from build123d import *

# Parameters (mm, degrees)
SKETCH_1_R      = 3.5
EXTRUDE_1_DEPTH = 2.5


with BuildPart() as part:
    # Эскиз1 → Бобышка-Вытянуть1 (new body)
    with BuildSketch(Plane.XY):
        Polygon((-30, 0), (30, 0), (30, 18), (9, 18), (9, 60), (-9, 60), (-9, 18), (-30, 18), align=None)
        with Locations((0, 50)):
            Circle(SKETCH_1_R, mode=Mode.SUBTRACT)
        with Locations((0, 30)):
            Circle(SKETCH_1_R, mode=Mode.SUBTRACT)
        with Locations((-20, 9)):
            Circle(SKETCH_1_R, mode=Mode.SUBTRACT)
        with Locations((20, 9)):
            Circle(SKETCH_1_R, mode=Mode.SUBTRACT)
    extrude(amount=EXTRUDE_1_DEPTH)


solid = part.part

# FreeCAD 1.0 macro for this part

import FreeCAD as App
import Part
import Sketcher
from FreeCAD import Vector
Q = App.Units.Quantity

doc = App.newDocument("Part")
body = doc.addObject("PartDesign::Body", "Body")

# Sketch on XY plane
sketch1 = doc.addObject("Sketcher::SketchObject", "Sketch")
body.addObject(sketch1)
sketch1.AttachmentSupport = (doc.XY_Plane, [""])
sketch1.MapMode = "FlatFace"
sketch1.addGeometry(Part.LineSegment(Vector(-30, 0, 0), Vector(30, 0, 0)), False)
sketch1.addGeometry(Part.LineSegment(Vector(30, 0, 0), Vector(30, 18, 0)), False)
sketch1.addGeometry(Part.LineSegment(Vector(30, 18, 0), Vector(9, 18, 0)), False)
sketch1.addGeometry(Part.LineSegment(Vector(9, 18, 0), Vector(9, 60, 0)), False)
sketch1.addGeometry(Part.LineSegment(Vector(9, 60, 0), Vector(-9, 60, 0)), False)
sketch1.addGeometry(Part.LineSegment(Vector(-9, 60, 0), Vector(-9, 18, 0)), False)
sketch1.addGeometry(Part.LineSegment(Vector(-9, 18, 0), Vector(-30, 18, 0)), False)
sketch1.addGeometry(Part.LineSegment(Vector(-30, 18, 0), Vector(-30, 0, 0)), False)
sketch1.addGeometry(Part.Circle(Vector(-20, 9, 0), Vector(0, 0, 1), 3.5), False)
sketch1.addGeometry(Part.Circle(Vector(20, 9, 0), Vector(0, 0, 1), 3.5), False)
sketch1.addGeometry(Part.Circle(Vector(0, 30, 0), Vector(0, 0, 1), 3.5), False)
sketch1.addGeometry(Part.Circle(Vector(0, 50, 0), Vector(0, 0, 1), 3.5), False)
sketch1.addConstraint(Sketcher.Constraint("Coincident", 0, 2, 1, 1))
sketch1.addConstraint(Sketcher.Constraint("Coincident", 1, 2, 2, 1))
sketch1.addConstraint(Sketcher.Constraint("Coincident", 2, 2, 3, 1))
sketch1.addConstraint(Sketcher.Constraint("Coincident", 3, 2, 4, 1))
sketch1.addConstraint(Sketcher.Constraint("Coincident", 4, 2, 5, 1))
sketch1.addConstraint(Sketcher.Constraint("Coincident", 5, 2, 6, 1))
sketch1.addConstraint(Sketcher.Constraint("Coincident", 6, 2, 7, 1))
sketch1.addConstraint(Sketcher.Constraint("Coincident", 7, 2, 0, 1))
sketch1.addConstraint(Sketcher.Constraint("Horizontal", 0))
sketch1.addConstraint(Sketcher.Constraint("Vertical", 1))
sketch1.addConstraint(Sketcher.Constraint("Horizontal", 2))
sketch1.addConstraint(Sketcher.Constraint("Vertical", 3))
sketch1.addConstraint(Sketcher.Constraint("Horizontal", 4))
sketch1.addConstraint(Sketcher.Constraint("Vertical", 5))
sketch1.addConstraint(Sketcher.Constraint("Horizontal", 6))
sketch1.addConstraint(Sketcher.Constraint("Vertical", 7))
sketch1.addConstraint(Sketcher.Constraint("Equal", 8, 9))
sketch1.addConstraint(Sketcher.Constraint("Equal", 9, 10))
sketch1.addConstraint(Sketcher.Constraint("Equal", 10, 11))
sketch1.addConstraint(Sketcher.Constraint("Symmetric", 0, 2, 7, 2, -1, 1))
sketch1.addConstraint(Sketcher.Constraint("Symmetric", 8, 3, 9, 3, -2))
sketch1.addConstraint(Sketcher.Constraint("Symmetric", 2, 2, 5, 2, -2))
sketch1.addConstraint(Sketcher.Constraint("PointOnObject", 10, 3, -2))
sketch1.addConstraint(Sketcher.Constraint("PointOnObject", 11, 3, -2))
sketch1.addConstraint(Sketcher.Constraint("Equal", 4, 1))
sketch1.addConstraint(Sketcher.Constraint("Diameter", 8, Q("7 mm")))
sketch1.addConstraint(Sketcher.Constraint("DistanceX", 0, 1, 0, 2, Q("60 mm")))
sketch1.addConstraint(Sketcher.Constraint("DistanceX", 2, 2, 2, 1, Q("21 mm")))
sketch1.addConstraint(Sketcher.Constraint("DistanceY", 3, 1, 3, 2, Q("42 mm")))
sketch1.addConstraint(Sketcher.Constraint("DistanceX", 8, 3, -1, 1, Q("20 mm")))
sketch1.addConstraint(Sketcher.Constraint("DistanceY", -1, 1, 8, 3, Q("9 mm")))
sketch1.addConstraint(Sketcher.Constraint("DistanceY", -1, 1, 10, 3, Q("30 mm")))
sketch1.addConstraint(Sketcher.Constraint("DistanceY", -1, 1, 11, 3, Q("50 mm")))
pad1 = doc.addObject("PartDesign::Pad", "Pad")
body.addObject(pad1)
pad1.Profile = sketch1
pad1.Length = 2.5

doc.recompute()
